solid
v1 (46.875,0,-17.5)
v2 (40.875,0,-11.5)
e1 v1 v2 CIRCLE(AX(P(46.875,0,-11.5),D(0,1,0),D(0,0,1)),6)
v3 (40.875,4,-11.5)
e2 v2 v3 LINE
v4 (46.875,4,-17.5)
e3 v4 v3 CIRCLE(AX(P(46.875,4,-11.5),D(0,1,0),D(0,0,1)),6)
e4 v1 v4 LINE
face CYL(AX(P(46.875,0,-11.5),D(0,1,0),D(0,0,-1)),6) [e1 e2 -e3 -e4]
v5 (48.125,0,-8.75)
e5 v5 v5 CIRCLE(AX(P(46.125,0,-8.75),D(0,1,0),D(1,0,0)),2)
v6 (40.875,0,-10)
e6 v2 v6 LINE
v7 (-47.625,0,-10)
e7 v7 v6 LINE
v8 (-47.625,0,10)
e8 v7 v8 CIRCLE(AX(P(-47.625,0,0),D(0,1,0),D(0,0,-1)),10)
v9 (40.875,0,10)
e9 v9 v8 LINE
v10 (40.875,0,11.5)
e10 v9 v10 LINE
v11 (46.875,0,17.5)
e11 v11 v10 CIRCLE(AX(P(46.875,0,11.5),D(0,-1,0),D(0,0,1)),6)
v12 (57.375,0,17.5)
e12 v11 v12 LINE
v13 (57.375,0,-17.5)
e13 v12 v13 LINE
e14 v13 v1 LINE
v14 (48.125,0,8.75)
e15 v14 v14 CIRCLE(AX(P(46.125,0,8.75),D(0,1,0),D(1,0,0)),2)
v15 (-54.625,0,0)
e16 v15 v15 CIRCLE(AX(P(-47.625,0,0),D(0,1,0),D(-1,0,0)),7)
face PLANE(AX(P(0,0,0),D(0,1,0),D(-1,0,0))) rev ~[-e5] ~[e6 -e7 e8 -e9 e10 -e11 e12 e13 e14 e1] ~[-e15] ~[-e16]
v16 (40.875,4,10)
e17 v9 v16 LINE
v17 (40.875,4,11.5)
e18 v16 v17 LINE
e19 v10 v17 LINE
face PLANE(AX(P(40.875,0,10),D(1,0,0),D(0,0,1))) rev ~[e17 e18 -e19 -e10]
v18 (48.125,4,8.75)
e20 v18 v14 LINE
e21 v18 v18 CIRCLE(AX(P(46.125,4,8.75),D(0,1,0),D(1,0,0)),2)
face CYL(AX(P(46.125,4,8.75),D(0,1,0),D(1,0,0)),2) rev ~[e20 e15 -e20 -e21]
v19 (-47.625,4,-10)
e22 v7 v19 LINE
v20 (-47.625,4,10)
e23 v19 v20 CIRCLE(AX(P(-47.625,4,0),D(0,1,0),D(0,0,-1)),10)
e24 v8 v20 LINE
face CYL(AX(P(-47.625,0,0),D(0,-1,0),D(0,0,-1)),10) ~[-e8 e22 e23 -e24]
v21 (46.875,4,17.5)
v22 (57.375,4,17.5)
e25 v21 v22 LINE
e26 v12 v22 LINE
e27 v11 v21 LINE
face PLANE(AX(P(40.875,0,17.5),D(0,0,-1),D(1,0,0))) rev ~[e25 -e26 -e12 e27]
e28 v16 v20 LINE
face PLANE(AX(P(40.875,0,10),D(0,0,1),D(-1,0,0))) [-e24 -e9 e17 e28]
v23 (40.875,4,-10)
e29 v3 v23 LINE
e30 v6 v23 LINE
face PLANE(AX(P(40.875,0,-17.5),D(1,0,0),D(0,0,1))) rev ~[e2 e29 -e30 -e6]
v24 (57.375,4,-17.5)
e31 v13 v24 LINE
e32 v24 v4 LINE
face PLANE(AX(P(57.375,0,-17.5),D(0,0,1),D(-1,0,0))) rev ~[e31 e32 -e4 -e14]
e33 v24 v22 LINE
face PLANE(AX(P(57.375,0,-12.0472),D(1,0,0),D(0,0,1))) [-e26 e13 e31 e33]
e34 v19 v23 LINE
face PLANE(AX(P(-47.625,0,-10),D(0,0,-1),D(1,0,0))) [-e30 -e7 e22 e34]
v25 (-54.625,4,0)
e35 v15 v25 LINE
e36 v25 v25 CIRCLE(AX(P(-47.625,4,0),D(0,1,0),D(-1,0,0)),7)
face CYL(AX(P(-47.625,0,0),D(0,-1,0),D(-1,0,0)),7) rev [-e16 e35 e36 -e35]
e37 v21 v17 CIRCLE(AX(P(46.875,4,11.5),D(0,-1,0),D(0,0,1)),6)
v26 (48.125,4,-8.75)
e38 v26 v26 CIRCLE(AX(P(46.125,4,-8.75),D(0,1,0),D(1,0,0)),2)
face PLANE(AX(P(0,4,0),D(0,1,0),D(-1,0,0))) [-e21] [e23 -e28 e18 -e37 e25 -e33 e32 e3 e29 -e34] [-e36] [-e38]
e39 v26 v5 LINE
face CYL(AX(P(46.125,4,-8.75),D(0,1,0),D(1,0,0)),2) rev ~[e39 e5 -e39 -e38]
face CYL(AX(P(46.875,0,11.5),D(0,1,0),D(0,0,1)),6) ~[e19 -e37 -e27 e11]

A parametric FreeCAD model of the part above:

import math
import FreeCAD as App
import Part
import Sketcher
from FreeCAD import Vector


def edges_at(feature, points):
    """Names of the edges that pass closest to the given points."""
    edges = feature.Shape.Edges
    near = lambda p: min(range(len(edges)), key=lambda i: edges[i].distToShape(Part.Vertex(*p))[0])
    return sorted({f"Edge{near(p) + 1}" for p in points})

doc = App.newDocument("Part")
params = doc.addObject("Spreadsheet::Sheet", "Params")
for row, (alias, value) in enumerate([
    ("sketch1_diameter", "14 mm"),
    ("sketch1_radius", "10 mm"),
    ("sketch1_height", "35 mm"),
    ("sketch1_width", "16.5 mm"),
    ("pad1_length", "4 mm"),
    ("sketch2_diameter", "4 mm"),
    ("fillet_radius", "6 mm"),
], start=1):
    params.set(f"A{row}", alias)
    params.set(f"B{row}", "=" + value)
    params.setAlias(f"B{row}", alias)

body = doc.addObject("PartDesign::Body", "Body")

# Sketch on XZ plane
sketch1 = doc.addObject("Sketcher::SketchObject", "Sketch")
body.addObject(sketch1)
sketch1.AttachmentSupport = (doc.XZ_Plane, [""])
sketch1.MapMode = "FlatFace"
sketch1.addGeometry([
    Part.LineSegment(Vector(57, 18, 0), Vector(57, -18, 0)),  # 0
    Part.LineSegment(Vector(57, -18, 0), Vector(41, -18, 0)),  # 1
    Part.LineSegment(Vector(41, -18, 0), Vector(41, -10, 0)),  # 2
    Part.LineSegment(Vector(41, -10, 0), Vector(-48, -10, 0)),  # 3
    Part.ArcOfCircle(Part.Circle(Vector(-48, 0, 0), Vector(0, 0, 1), 10), math.radians(90), math.radians(270)),  # 4
    Part.LineSegment(Vector(-48, 10, 0), Vector(41, 10, 0)),  # 5
    Part.LineSegment(Vector(41, 10, 0), Vector(41, 18, 0)),  # 6
    Part.LineSegment(Vector(41, 18, 0), Vector(57, 18, 0)),  # 7
    Part.Circle(Vector(-48, 0, 0), Vector(0, 0, 1), 7),  # 8
], False)
sketch1.addConstraint([
    Sketcher.Constraint("Coincident", 0, 2, 1, 1),
    Sketcher.Constraint("Coincident", 1, 2, 2, 1),
    Sketcher.Constraint("Coincident", 2, 2, 3, 1),
    Sketcher.Constraint("Tangent", 3, 2, 4, 2),
    Sketcher.Constraint("Tangent", 4, 1, 5, 1),
    Sketcher.Constraint("Coincident", 5, 2, 6, 1),
    Sketcher.Constraint("Coincident", 6, 2, 7, 1),
    Sketcher.Constraint("Coincident", 7, 2, 0, 1),
    Sketcher.Constraint("Vertical", 0),
    Sketcher.Constraint("Horizontal", 1),
    Sketcher.Constraint("Vertical", 2),
    Sketcher.Constraint("Horizontal", 3),
    Sketcher.Constraint("Horizontal", 5),
    Sketcher.Constraint("Vertical", 6),
    Sketcher.Constraint("Horizontal", 7),
    Sketcher.Constraint("Coincident", 8, 3, 4, 3),
    Sketcher.Constraint("Symmetric", 2, 2, 5, 2, -1),
    Sketcher.Constraint("Equal", 2, 6),
    Sketcher.Constraint("Diameter", 8, 14.0),
    Sketcher.Constraint("Radius", 4, 10.0),
    Sketcher.Constraint("DistanceY", 0, 2, 0, 1, 35.0),
    Sketcher.Constraint("DistanceX", 1, 2, 1, 1, 16.5),
    Sketcher.Constraint("DistanceX", 4, 3, 0, 2, 105.0),
    Sketcher.Constraint("DistanceX", 4, 3, -1, 1, 47.625),
])
sketch1.setExpression("Constraints[18]", "Params.sketch1_diameter")
sketch1.setExpression("Constraints[19]", "Params.sketch1_radius")
sketch1.setExpression("Constraints[20]", "Params.sketch1_height")
sketch1.setExpression("Constraints[21]", "Params.sketch1_width")
pad1 = doc.addObject("PartDesign::Pad", "Pad")
body.addObject(pad1)
pad1.Profile = sketch1
pad1.setExpression("Length", "Params.pad1_length")
pad1.Reversed = True

# Sketch on XZ plane
sketch2 = doc.addObject("Sketcher::SketchObject", "Sketch001")
body.addObject(sketch2)
sketch2.AttachmentSupport = (doc.XZ_Plane, [""])
sketch2.MapMode = "FlatFace"
sketch2.AttachmentOffset = App.Placement(Vector(0, 0, -4), App.Rotation())
sketch2.addGeometry([
    Part.Circle(Vector(46.1, 8.8, 0), Vector(0, 0, 1), 2),
    Part.Circle(Vector(46.1, -8.8, 0), Vector(0, 0, 1), 2),
], False)
sketch2.addConstraint([
    Sketcher.Constraint("Equal", 0, 1),
    Sketcher.Constraint("Symmetric", 0, 3, 1, 3, -1),
    Sketcher.Constraint("Diameter", 0, 4.0),
    Sketcher.Constraint("DistanceY", 1, 3, 0, 3, 17.5),
    Sketcher.Constraint("DistanceX", -1, 1, 0, 3, 46.125),
])
sketch2.setExpression("Constraints[2]", "Params.sketch2_diameter")
pocket1 = doc.addObject("PartDesign::Pocket", "Pocket")
body.addObject(pocket1)
pocket1.Profile = sketch2
pocket1.Type = "ThroughAll"
pocket1.Reversed = True
doc.recompute()

fillet = doc.addObject("PartDesign::Fillet", "Fillet")
body.addObject(fillet)
fillet.Base = (pocket1, edges_at(pocket1, [(40.875, 2, -17.5), (40.875, 2, 17.5)]))
fillet.setExpression("Radius", "Params.fillet_radius")

doc.recompute()
